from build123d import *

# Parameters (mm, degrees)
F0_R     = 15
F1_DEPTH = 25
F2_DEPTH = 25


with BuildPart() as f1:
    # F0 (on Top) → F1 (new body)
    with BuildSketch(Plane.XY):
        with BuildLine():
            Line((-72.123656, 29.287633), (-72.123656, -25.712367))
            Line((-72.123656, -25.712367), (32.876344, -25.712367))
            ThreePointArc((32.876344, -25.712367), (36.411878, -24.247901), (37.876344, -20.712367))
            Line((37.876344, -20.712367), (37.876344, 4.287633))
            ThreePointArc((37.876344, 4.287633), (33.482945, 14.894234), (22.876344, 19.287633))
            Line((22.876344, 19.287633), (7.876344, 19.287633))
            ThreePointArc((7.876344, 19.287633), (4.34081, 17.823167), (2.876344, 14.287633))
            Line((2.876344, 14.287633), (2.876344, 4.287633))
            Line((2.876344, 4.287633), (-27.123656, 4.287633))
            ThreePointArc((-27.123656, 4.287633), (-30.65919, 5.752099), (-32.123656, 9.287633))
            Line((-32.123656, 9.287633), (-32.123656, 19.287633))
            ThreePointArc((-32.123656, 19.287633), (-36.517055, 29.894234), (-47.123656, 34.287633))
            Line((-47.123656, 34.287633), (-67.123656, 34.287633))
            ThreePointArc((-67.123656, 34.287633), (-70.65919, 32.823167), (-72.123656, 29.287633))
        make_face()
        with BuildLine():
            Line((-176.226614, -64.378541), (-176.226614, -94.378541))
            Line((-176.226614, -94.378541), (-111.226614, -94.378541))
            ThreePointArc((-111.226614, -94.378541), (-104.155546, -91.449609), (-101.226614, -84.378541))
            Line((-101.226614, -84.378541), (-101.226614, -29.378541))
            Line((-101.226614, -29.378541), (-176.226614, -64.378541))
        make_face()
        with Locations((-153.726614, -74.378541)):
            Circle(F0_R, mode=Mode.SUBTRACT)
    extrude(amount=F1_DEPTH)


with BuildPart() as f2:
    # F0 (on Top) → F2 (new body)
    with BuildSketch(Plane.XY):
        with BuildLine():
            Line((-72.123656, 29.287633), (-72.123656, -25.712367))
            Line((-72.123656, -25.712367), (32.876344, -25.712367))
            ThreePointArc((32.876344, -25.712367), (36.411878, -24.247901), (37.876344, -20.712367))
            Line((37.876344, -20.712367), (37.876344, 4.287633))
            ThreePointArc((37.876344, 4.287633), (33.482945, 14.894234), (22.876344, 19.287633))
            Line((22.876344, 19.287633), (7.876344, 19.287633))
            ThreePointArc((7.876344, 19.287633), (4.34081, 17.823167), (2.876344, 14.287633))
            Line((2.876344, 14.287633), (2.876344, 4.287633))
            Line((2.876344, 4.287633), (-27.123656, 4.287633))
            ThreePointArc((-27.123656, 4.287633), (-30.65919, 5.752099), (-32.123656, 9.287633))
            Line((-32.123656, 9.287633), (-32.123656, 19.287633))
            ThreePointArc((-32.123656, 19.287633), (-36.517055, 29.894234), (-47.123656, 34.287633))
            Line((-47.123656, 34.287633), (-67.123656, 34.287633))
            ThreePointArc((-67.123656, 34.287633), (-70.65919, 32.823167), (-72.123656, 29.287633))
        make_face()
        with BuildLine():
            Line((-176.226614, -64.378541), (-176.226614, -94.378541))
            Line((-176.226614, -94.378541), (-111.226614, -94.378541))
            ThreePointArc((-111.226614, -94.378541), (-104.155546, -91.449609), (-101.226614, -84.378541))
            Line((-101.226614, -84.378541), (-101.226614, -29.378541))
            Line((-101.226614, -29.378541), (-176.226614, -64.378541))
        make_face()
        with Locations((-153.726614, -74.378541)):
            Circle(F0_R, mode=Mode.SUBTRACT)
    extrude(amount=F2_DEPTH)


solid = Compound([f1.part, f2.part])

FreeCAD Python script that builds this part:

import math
import FreeCAD as App
import Part
import Sketcher
Q = App.Units.Quantity

doc = App.newDocument("Part")
params = doc.addObject("Spreadsheet::Sheet", "Params")
for row, (alias, value) in enumerate([
    ("sketch1_diameter", "30 mm"),
    ("sketch1_radius", "5 mm"),
    ("sketch1_radius2", "9.999999 mm"),
    ("sketch1_width", "105 mm"),
    ("sketch1_width2", "15 mm"),
    ("pad1_length", "25 mm"),
    ("sketch2_diameter", "30 mm"),
    ("sketch2_radius", "5 mm"),
    ("sketch2_radius2", "9.999999 mm"),
    ("sketch2_width", "105 mm"),
    ("sketch2_width2", "15 mm"),
    ("pad2_length", "25 mm"),
], start=1):
    params.set(f"A{row}", alias)
    params.set(f"B{row}", "=" + value)
    params.setAlias(f"B{row}", alias)

body = doc.addObject("PartDesign::Body", "Body")
body.AllowCompound = True

# Sketch on XY plane
sketch1 = body.newObject("Sketcher::SketchObject", "Sketch")
sketch1.AttachmentSupport = (doc.getObject("XY_Plane"), [""])
sketch1.MapMode = "FlatFace"
sketch1.addGeometry([
    Part.LineSegment(App.Vector(-72.1, 29.3, 0), App.Vector(-72.1, -25.7, 0)),  # 0
    Part.LineSegment(App.Vector(-72.1, -25.7, 0), App.Vector(32.9, -25.7, 0)),  # 1
    Part.ArcOfCircle(Part.Circle(App.Vector(32.9, -20.7, 0), App.Vector(0, 0, 1), 5), math.radians(-90), math.radians(0)),  # 2
    Part.LineSegment(App.Vector(37.9, -20.7, 0), App.Vector(37.9, 4.3, 0)),  # 3
    Part.ArcOfCircle(Part.Circle(App.Vector(22.9, 4.3, 0), App.Vector(0, 0, 1), 15), math.radians(0), math.radians(90)),  # 4
    Part.LineSegment(App.Vector(22.9, 19.3, 0), App.Vector(7.9, 19.3, 0)),  # 5
    Part.ArcOfCircle(Part.Circle(App.Vector(7.9, 14.3, 0), App.Vector(0, 0, 1), 5), math.radians(90), math.radians(180)),  # 6
    Part.LineSegment(App.Vector(2.9, 14.3, 0), App.Vector(2.9, 4.3, 0)),  # 7
    Part.LineSegment(App.Vector(2.9, 4.3, 0), App.Vector(-27.1, 4.3, 0)),  # 8
    Part.ArcOfCircle(Part.Circle(App.Vector(-27.1, 9.3, 0), App.Vector(0, 0, 1), 5), math.radians(180), math.radians(270)),  # 9
    Part.LineSegment(App.Vector(-32.1, 9.3, 0), App.Vector(-32.1, 19.3, 0)),  # 10
    Part.ArcOfCircle(Part.Circle(App.Vector(-47.1, 19.3, 0), App.Vector(0, 0, 1), 15), math.radians(0), math.radians(90)),  # 11
    Part.LineSegment(App.Vector(-47.1, 34.3, 0), App.Vector(-67.1, 34.3, 0)),  # 12
    Part.ArcOfCircle(Part.Circle(App.Vector(-67.1, 29.3, 0), App.Vector(0, 0, 1), 5), math.radians(90), math.radians(180)),  # 13
    Part.LineSegment(App.Vector(-176.2, -64.4, 0), App.Vector(-176.2, -94.4, 0)),  # 14
    Part.LineSegment(App.Vector(-176.2, -94.4, 0), App.Vector(-111.2, -94.4, 0)),  # 15
    Part.ArcOfCircle(Part.Circle(App.Vector(-111.2, -84.4, 0), App.Vector(0, 0, 1), 10), math.radians(-90), math.radians(0)),  # 16
    Part.LineSegment(App.Vector(-101.2, -84.4, 0), App.Vector(-101.2, -29.4, 0)),  # 17
    Part.LineSegment(App.Vector(-101.2, -29.4, 0), App.Vector(-176.2, -64.4, 0)),  # 18
    Part.Circle(App.Vector(-153.7, -74.4, 0), App.Vector(0, 0, 1), 15),  # 19
], False)
sketch1.addConstraint([
    Sketcher.Constraint("Coincident", 0, 2, 1, 1),
    Sketcher.Constraint("Tangent", 1, 2, 2, 1),
    Sketcher.Constraint("Tangent", 2, 2, 3, 1),
    Sketcher.Constraint("Tangent", 3, 2, 4, 1),
    Sketcher.Constraint("Tangent", 4, 2, 5, 1),
    Sketcher.Constraint("Tangent", 5, 2, 6, 1),
    Sketcher.Constraint("Tangent", 6, 2, 7, 1),
    Sketcher.Constraint("Coincident", 7, 2, 8, 1),
    Sketcher.Constraint("Tangent", 8, 2, 9, 2),
    Sketcher.Constraint("Tangent", 9, 1, 10, 1),
    Sketcher.Constraint("Tangent", 10, 2, 11, 1),
    Sketcher.Constraint("Tangent", 11, 2, 12, 1),
    Sketcher.Constraint("Tangent", 12, 2, 13, 1),
    Sketcher.Constraint("Tangent", 13, 2, 0, 1),
    Sketcher.Constraint("Coincident", 14, 2, 15, 1),
    Sketcher.Constraint("Tangent", 15, 2, 16, 1),
    Sketcher.Constraint("Tangent", 16, 2, 17, 1),
    Sketcher.Constraint("Coincident", 17, 2, 18, 1),
    Sketcher.Constraint("Coincident", 18, 2, 14, 1),
    Sketcher.Constraint("Vertical", 0),
    Sketcher.Constraint("Horizontal", 1),
    Sketcher.Constraint("Vertical", 3),
    Sketcher.Constraint("Horizontal", 5),
    Sketcher.Constraint("Vertical", 7),
    Sketcher.Constraint("Horizontal", 8),
    Sketcher.Constraint("Vertical", 10),
    Sketcher.Constraint("Horizontal", 12),
    Sketcher.Constraint("Vertical", 14),
    Sketcher.Constraint("Horizontal", 15),
    Sketcher.Constraint("Vertical", 17),
    Sketcher.Constraint("Equal", 2, 6),
    Sketcher.Constraint("Equal", 6, 9),
    Sketcher.Constraint("Equal", 4, 11),
    Sketcher.Constraint("Equal", 9, 13),
    Sketcher.Constraint("Horizontal", 3, 2, 7, 2),
    Sketcher.Constraint("Horizontal", 5, 2, 10, 2),
    Sketcher.Constraint("Equal", 8, 14),
    Sketcher.Constraint("Equal", 0, 17),
    Sketcher.Constraint("Diameter", 19, Q("30 mm")),
    Sketcher.Constraint("Radius", 2, Q("5 mm")),
    Sketcher.Constraint("Radius", 16, Q("9.999999 mm")),
    Sketcher.Constraint("DistanceX", 1, 1, 1, 2, Q("105 mm")),
    Sketcher.Constraint("DistanceX", 5, 2, 5, 1, Q("15 mm")),
    Sketcher.Constraint("DistanceX", 8, 2, 8, 1, Q("30 mm")),
    Sketcher.Constraint("DistanceX", 12, 2, 12, 1, Q("20 mm")),
    Sketcher.Constraint("DistanceX", 15, 1, 15, 2, Q("65 mm")),
    Sketcher.Constraint("DistanceY", 0, 2, 0, 1, Q("55 mm")),
    Sketcher.Constraint("DistanceY", 16, 3, 19, 3, Q("10.000001 mm")),
    Sketcher.Constraint("DistanceX", 19, 3, 16, 3, Q("42.500001 mm")),
    Sketcher.Constraint("DistanceX", -1, 1, 4, 3, Q("22.876342 mm")),
    Sketcher.Constraint("DistanceY", -1, 1, 4, 3, Q("4.287631 mm")),
    Sketcher.Constraint("DistanceY", 16, 3, -1, 1, Q("84.378542 mm")),
    Sketcher.Constraint("DistanceX", 14, 2, 0, 2, Q("104.102958 mm")),
])
sketch1.setExpression("Constraints[38]", "Params.sketch1_diameter")
sketch1.setExpression("Constraints[39]", "Params.sketch1_radius")
sketch1.setExpression("Constraints[40]", "Params.sketch1_radius2")
sketch1.setExpression("Constraints[41]", "Params.sketch1_width")
sketch1.setExpression("Constraints[42]", "Params.sketch1_width2")
pad1 = body.newObject("PartDesign::Pad", "Pad")
pad1.Profile = sketch1
pad1.setExpression("Length", "Params.pad1_length")
body2 = doc.addObject("PartDesign::Body", "Body001")
body2.AllowCompound = True

# Sketch on XY plane
sketch2 = body2.newObject("Sketcher::SketchObject", "Sketch001")
sketch2.AttachmentSupport = (doc.getObject("XY_Plane001"), [""])
sketch2.MapMode = "FlatFace"
sketch2.addGeometry([
    Part.LineSegment(App.Vector(-72.1, 29.3, 0), App.Vector(-72.1, -25.7, 0)),  # 0
    Part.LineSegment(App.Vector(-72.1, -25.7, 0), App.Vector(32.9, -25.7, 0)),  # 1
    Part.ArcOfCircle(Part.Circle(App.Vector(32.9, -20.7, 0), App.Vector(0, 0, 1), 5), math.radians(-90), math.radians(0)),  # 2
    Part.LineSegment(App.Vector(37.9, -20.7, 0), App.Vector(37.9, 4.3, 0)),  # 3
    Part.ArcOfCircle(Part.Circle(App.Vector(22.9, 4.3, 0), App.Vector(0, 0, 1), 15), math.radians(0), math.radians(90)),  # 4
    Part.LineSegment(App.Vector(22.9, 19.3, 0), App.Vector(7.9, 19.3, 0)),  # 5
    Part.ArcOfCircle(Part.Circle(App.Vector(7.9, 14.3, 0), App.Vector(0, 0, 1), 5), math.radians(90), math.radians(180)),  # 6
    Part.LineSegment(App.Vector(2.9, 14.3, 0), App.Vector(2.9, 4.3, 0)),  # 7
    Part.LineSegment(App.Vector(2.9, 4.3, 0), App.Vector(-27.1, 4.3, 0)),  # 8
    Part.ArcOfCircle(Part.Circle(App.Vector(-27.1, 9.3, 0), App.Vector(0, 0, 1), 5), math.radians(180), math.radians(270)),  # 9
    Part.LineSegment(App.Vector(-32.1, 9.3, 0), App.Vector(-32.1, 19.3, 0)),  # 10
    Part.ArcOfCircle(Part.Circle(App.Vector(-47.1, 19.3, 0), App.Vector(0, 0, 1), 15), math.radians(0), math.radians(90)),  # 11
    Part.LineSegment(App.Vector(-47.1, 34.3, 0), App.Vector(-67.1, 34.3, 0)),  # 12
    Part.ArcOfCircle(Part.Circle(App.Vector(-67.1, 29.3, 0), App.Vector(0, 0, 1), 5), math.radians(90), math.radians(180)),  # 13
    Part.LineSegment(App.Vector(-176.2, -64.4, 0), App.Vector(-176.2, -94.4, 0)),  # 14
    Part.LineSegment(App.Vector(-176.2, -94.4, 0), App.Vector(-111.2, -94.4, 0)),  # 15
    Part.ArcOfCircle(Part.Circle(App.Vector(-111.2, -84.4, 0), App.Vector(0, 0, 1), 10), math.radians(-90), math.radians(0)),  # 16
    Part.LineSegment(App.Vector(-101.2, -84.4, 0), App.Vector(-101.2, -29.4, 0)),  # 17
    Part.LineSegment(App.Vector(-101.2, -29.4, 0), App.Vector(-176.2, -64.4, 0)),  # 18
    Part.Circle(App.Vector(-153.7, -74.4, 0), App.Vector(0, 0, 1), 15),  # 19
], False)
sketch2.addConstraint([
    Sketcher.Constraint("Coincident", 0, 2, 1, 1),
    Sketcher.Constraint("Tangent", 1, 2, 2, 1),
    Sketcher.Constraint("Tangent", 2, 2, 3, 1),
    Sketcher.Constraint("Tangent", 3, 2, 4, 1),
    Sketcher.Constraint("Tangent", 4, 2, 5, 1),
    Sketcher.Constraint("Tangent", 5, 2, 6, 1),
    Sketcher.Constraint("Tangent", 6, 2, 7, 1),
    Sketcher.Constraint("Coincident", 7, 2, 8, 1),
    Sketcher.Constraint("Tangent", 8, 2, 9, 2),
    Sketcher.Constraint("Tangent", 9, 1, 10, 1),
    Sketcher.Constraint("Tangent", 10, 2, 11, 1),
    Sketcher.Constraint("Tangent", 11, 2, 12, 1),
    Sketcher.Constraint("Tangent", 12, 2, 13, 1),
    Sketcher.Constraint("Tangent", 13, 2, 0, 1),
    Sketcher.Constraint("Coincident", 14, 2, 15, 1),
    Sketcher.Constraint("Tangent", 15, 2, 16, 1),
    Sketcher.Constraint("Tangent", 16, 2, 17, 1),
    Sketcher.Constraint("Coincident", 17, 2, 18, 1),
    Sketcher.Constraint("Coincident", 18, 2, 14, 1),
    Sketcher.Constraint("Vertical", 0),
    Sketcher.Constraint("Horizontal", 1),
    Sketcher.Constraint("Vertical", 3),
    Sketcher.Constraint("Horizontal", 5),
    Sketcher.Constraint("Vertical", 7),
    Sketcher.Constraint("Horizontal", 8),
    Sketcher.Constraint("Vertical", 10),
    Sketcher.Constraint("Horizontal", 12),
    Sketcher.Constraint("Vertical", 14),
    Sketcher.Constraint("Horizontal", 15),
    Sketcher.Constraint("Vertical", 17),
    Sketcher.Constraint("Equal", 2, 6),
    Sketcher.Constraint("Equal", 6, 9),
    Sketcher.Constraint("Equal", 4, 11),
    Sketcher.Constraint("Equal", 9, 13),
    Sketcher.Constraint("Horizontal", 3, 2, 7, 2),
    Sketcher.Constraint("Horizontal", 5, 2, 10, 2),
    Sketcher.Constraint("Equal", 8, 14),
    Sketcher.Constraint("Equal", 0, 17),
    Sketcher.Constraint("Diameter", 19, Q("30 mm")),
    Sketcher.Constraint("Radius", 2, Q("5 mm")),
    Sketcher.Constraint("Radius", 16, Q("9.999999 mm")),
    Sketcher.Constraint("DistanceX", 1, 1, 1, 2, Q("105 mm")),
    Sketcher.Constraint("DistanceX", 5, 2, 5, 1, Q("15 mm")),
    Sketcher.Constraint("DistanceX", 8, 2, 8, 1, Q("30 mm")),
    Sketcher.Constraint("DistanceX", 12, 2, 12, 1, Q("20 mm")),
    Sketcher.Constraint("DistanceX", 15, 1, 15, 2, Q("65 mm")),
    Sketcher.Constraint("DistanceY", 0, 2, 0, 1, Q("55 mm")),
    Sketcher.Constraint("DistanceY", 16, 3, 19, 3, Q("10.000001 mm")),
    Sketcher.Constraint("DistanceX", 19, 3, 16, 3, Q("42.500001 mm")),
    Sketcher.Constraint("DistanceX", -1, 1, 4, 3, Q("22.876342 mm")),
    Sketcher.Constraint("DistanceY", -1, 1, 4, 3, Q("4.287631 mm")),
    Sketcher.Constraint("DistanceY", 16, 3, -1, 1, Q("84.378542 mm")),
    Sketcher.Constraint("DistanceX", 14, 2, 0, 2, Q("104.102958 mm")),
])
sketch2.setExpression("Constraints[38]", "Params.sketch2_diameter")
sketch2.setExpression("Constraints[39]", "Params.sketch2_radius")
sketch2.setExpression("Constraints[40]", "Params.sketch2_radius2")
sketch2.setExpression("Constraints[41]", "Params.sketch2_width")
sketch2.setExpression("Constraints[42]", "Params.sketch2_width2")
pad2 = body2.newObject("PartDesign::Pad", "Pad001")
pad2.Profile = sketch2
pad2.setExpression("Length", "Params.pad2_length")

doc.recompute()
